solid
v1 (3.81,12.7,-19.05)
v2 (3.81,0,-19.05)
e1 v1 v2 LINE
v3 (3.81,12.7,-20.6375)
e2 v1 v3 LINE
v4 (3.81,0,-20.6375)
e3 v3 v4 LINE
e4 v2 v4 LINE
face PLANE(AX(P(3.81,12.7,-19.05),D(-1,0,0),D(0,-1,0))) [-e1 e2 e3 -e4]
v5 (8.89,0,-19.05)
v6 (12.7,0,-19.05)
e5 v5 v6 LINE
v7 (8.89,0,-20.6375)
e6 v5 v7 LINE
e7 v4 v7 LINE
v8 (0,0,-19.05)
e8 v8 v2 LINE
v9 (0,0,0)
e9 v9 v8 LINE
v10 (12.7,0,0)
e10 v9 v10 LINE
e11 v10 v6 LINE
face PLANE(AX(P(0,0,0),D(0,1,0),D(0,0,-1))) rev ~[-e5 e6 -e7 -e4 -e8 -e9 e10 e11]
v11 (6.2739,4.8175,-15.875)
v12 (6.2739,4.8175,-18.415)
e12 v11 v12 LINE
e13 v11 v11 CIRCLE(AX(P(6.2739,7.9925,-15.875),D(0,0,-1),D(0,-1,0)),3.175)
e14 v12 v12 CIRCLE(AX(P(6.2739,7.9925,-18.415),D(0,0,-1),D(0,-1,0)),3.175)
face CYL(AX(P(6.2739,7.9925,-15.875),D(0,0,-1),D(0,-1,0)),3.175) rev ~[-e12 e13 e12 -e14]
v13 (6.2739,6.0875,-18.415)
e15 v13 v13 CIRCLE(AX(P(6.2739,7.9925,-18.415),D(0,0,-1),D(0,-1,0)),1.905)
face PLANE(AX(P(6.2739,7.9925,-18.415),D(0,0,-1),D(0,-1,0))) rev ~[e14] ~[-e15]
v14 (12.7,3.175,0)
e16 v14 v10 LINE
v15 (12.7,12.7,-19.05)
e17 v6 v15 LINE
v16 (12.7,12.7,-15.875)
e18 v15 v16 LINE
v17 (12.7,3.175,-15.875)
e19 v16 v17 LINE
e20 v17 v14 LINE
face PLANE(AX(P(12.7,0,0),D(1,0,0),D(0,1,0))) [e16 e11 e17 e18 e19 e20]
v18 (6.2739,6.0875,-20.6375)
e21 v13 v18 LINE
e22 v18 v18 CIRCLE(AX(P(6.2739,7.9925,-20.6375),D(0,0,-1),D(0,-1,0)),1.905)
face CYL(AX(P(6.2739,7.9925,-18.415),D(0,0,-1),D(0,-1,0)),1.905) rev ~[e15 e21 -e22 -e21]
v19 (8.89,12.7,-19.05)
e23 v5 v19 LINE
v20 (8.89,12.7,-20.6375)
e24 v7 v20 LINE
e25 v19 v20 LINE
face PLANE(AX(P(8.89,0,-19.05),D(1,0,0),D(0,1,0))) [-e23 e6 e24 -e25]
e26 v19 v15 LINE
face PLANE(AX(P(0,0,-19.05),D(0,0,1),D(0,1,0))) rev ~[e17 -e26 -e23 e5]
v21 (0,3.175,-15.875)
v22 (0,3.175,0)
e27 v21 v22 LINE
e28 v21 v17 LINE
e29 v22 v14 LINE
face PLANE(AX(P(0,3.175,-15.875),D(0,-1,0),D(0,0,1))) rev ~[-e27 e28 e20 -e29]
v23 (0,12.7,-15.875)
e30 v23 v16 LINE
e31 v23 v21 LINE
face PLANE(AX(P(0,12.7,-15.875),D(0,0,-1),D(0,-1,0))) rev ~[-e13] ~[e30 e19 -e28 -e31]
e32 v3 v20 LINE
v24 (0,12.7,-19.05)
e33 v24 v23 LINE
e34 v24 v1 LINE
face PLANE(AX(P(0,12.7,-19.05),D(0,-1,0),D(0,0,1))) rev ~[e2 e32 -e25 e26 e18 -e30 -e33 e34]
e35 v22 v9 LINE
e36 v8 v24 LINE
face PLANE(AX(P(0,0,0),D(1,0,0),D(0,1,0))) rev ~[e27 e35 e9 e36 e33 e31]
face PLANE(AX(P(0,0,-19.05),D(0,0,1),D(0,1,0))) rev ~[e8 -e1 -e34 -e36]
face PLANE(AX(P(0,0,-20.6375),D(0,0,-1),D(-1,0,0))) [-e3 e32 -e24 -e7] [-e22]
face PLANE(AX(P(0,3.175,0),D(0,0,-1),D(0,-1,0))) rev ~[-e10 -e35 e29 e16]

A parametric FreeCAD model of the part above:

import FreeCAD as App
import Part
import Sketcher

V = App.Vector
Q = App.Units.Quantity

doc = App.newDocument("Part")
params = doc.addObject("Spreadsheet::Sheet", "Params")
for row, (alias, value) in enumerate([
    ("sketch1_width", "0.5 in"),
    ("sketch1_height", "0.75 in"),
    ("sketch1_width2", "0.125 in"),
    ("pad1_length", "0.5 in"),
    ("sketch2_width", "0.2 in"),
    ("sketch2_height", "0.5 in"),
    ("pad2_length", "0.0625 in"),
    ("sketch3_diameter", "0.15 in"),
    ("hole_diameter", "0.15 in"),
    ("hole_cbore_diameter", "0.25 in"),
    ("hole_cbore_depth", "0.1 in"),
], start=1):
    params.set(f"A{row}", alias)
    params.set(f"B{row}", "=" + value)
    params.setAlias(f"B{row}", alias)

body = doc.addObject("PartDesign::Body", "Body")

sketch1 = body.newObject("Sketcher::SketchObject", "Sketch")
sketch1.AttachmentSupport = (doc.getObject("YZ_Plane"), [""])
sketch1.MapMode = "FlatFace"
sketch1.addGeometry(Part.LineSegment(V(3.2, 0, 0), V(0, 0, 0)), False)
sketch1.addGeometry(Part.LineSegment(V(0, 0, 0), V(0, -19.1, 0)), False)
sketch1.addGeometry(Part.LineSegment(V(0, -19.1, 0), V(12.7, -19.1, 0)), False)
sketch1.addGeometry(Part.LineSegment(V(12.7, -19.1, 0), V(12.7, -15.9, 0)), False)
sketch1.addGeometry(Part.LineSegment(V(12.7, -15.9, 0), V(3.2, -15.9, 0)), False)
sketch1.addGeometry(Part.LineSegment(V(3.2, -15.9, 0), V(3.2, 0, 0)), False)
sketch1.addConstraint(Sketcher.Constraint("Coincident", 0, 2, 1, 1))
sketch1.addConstraint(Sketcher.Constraint("Coincident", 1, 2, 2, 1))
sketch1.addConstraint(Sketcher.Constraint("Coincident", 2, 2, 3, 1))
sketch1.addConstraint(Sketcher.Constraint("Coincident", 3, 2, 4, 1))
sketch1.addConstraint(Sketcher.Constraint("Coincident", 4, 2, 5, 1))
sketch1.addConstraint(Sketcher.Constraint("Coincident", 5, 2, 0, 1))
sketch1.addConstraint(Sketcher.Constraint("Horizontal", 0))
sketch1.addConstraint(Sketcher.Constraint("Vertical", 1))
sketch1.addConstraint(Sketcher.Constraint("Horizontal", 2))
sketch1.addConstraint(Sketcher.Constraint("Vertical", 3))
sketch1.addConstraint(Sketcher.Constraint("Horizontal", 4))
sketch1.addConstraint(Sketcher.Constraint("Vertical", 5))
sketch1.addConstraint(Sketcher.Constraint("Coincident", 0, 2, -1, 1))
sketch1.addConstraint(Sketcher.Constraint("Equal", 0, 3))
sketch1.addConstraint(Sketcher.Constraint("DistanceX", 2, 1, 2, 2, Q("0.5 in")))
sketch1.addConstraint(Sketcher.Constraint("DistanceY", 1, 2, 1, 1, Q("0.75 in")))
sketch1.addConstraint(Sketcher.Constraint("DistanceX", 0, 2, 0, 1, Q("0.125 in")))
sketch1.setExpression("Constraints[14]", "Params.sketch1_width")
sketch1.setExpression("Constraints[15]", "Params.sketch1_height")
sketch1.setExpression("Constraints[16]", "Params.sketch1_width2")
pad1 = body.newObject("PartDesign::Pad", "Pad")
pad1.Profile = sketch1
pad1.setExpression("Length", "Params.pad1_length")

sketch2 = body.newObject("Sketcher::SketchObject", "Sketch001")
sketch2.AttachmentSupport = (doc.getObject("XY_Plane"), [""])
sketch2.MapMode = "FlatFace"
sketch2.AttachmentOffset = App.Placement(V(0, 0, -0.75 * 25.4), App.Rotation())
sketch2.addGeometry(Part.LineSegment(V(4, 0, 0), V(4, 13, 0)), False)
sketch2.addGeometry(Part.LineSegment(V(4, 13, 0), V(9, 13, 0)), False)
sketch2.addGeometry(Part.LineSegment(V(9, 13, 0), V(9, 0, 0)), False)
sketch2.addGeometry(Part.LineSegment(V(9, 0, 0), V(4, 0, 0)), False)
sketch2.addConstraint(Sketcher.Constraint("Coincident", 0, 2, 1, 1))
sketch2.addConstraint(Sketcher.Constraint("Coincident", 1, 2, 2, 1))
sketch2.addConstraint(Sketcher.Constraint("Coincident", 2, 2, 3, 1))
sketch2.addConstraint(Sketcher.Constraint("Coincident", 3, 2, 0, 1))
sketch2.addConstraint(Sketcher.Constraint("Vertical", 0))
sketch2.addConstraint(Sketcher.Constraint("Horizontal", 1))
sketch2.addConstraint(Sketcher.Constraint("Vertical", 2))
sketch2.addConstraint(Sketcher.Constraint("Horizontal", 3))
sketch2.addConstraint(Sketcher.Constraint("PointOnObject", 2, 2, -1))
sketch2.addConstraint(Sketcher.Constraint("DistanceX", 1, 1, 1, 2, Q("0.2 in")))
sketch2.addConstraint(Sketcher.Constraint("DistanceY", 0, 1, 0, 2, Q("0.5 in")))
sketch2.addConstraint(Sketcher.Constraint("DistanceX", -1, 1, 0, 2, Q("0.15 in")))
sketch2.setExpression("Constraints[9]", "Params.sketch2_width")
sketch2.setExpression("Constraints[10]", "Params.sketch2_height")
pad2 = body.newObject("PartDesign::Pad", "Pad001")
pad2.Profile = sketch2
pad2.setExpression("Length", "Params.pad2_length")
pad2.Reversed = True

sketch3 = body.newObject("Sketcher::SketchObject", "Sketch002")
sketch3.AttachmentSupport = (doc.getObject("XY_Plane"), [""])
sketch3.MapMode = "FlatFace"
sketch3.AttachmentOffset = App.Placement(V(0, 0, -0.625 * 25.4), App.Rotation())
sketch3.addGeometry(Part.Circle(V(6.3, 8, 0), V(0, 0, 1), 1.9), False)
sketch3.addConstraint(Sketcher.Constraint("Diameter", 0, Q("0.15 in")))
sketch3.addConstraint(Sketcher.Constraint("DistanceX", -1, 1, 0, 3, Q("0.247 in")))
sketch3.addConstraint(Sketcher.Constraint("DistanceY", -1, 1, 0, 3, Q("7.9925 mm")))
sketch3.setExpression("Constraints[0]", "Params.sketch3_diameter")
doc.recompute()
hole = body.newObject("PartDesign::Hole", "Hole")
hole.Profile = sketch3
hole.ThreadType = "None"
hole.setExpression("Diameter", "Params.hole_diameter")
hole.DepthType = "ThroughAll"
hole.HoleCutType = "Counterbore"
hole.setExpression("HoleCutDiameter", "Params.hole_cbore_diameter")
hole.setExpression("HoleCutDepth", "Params.hole_cbore_depth")

doc.recompute()
